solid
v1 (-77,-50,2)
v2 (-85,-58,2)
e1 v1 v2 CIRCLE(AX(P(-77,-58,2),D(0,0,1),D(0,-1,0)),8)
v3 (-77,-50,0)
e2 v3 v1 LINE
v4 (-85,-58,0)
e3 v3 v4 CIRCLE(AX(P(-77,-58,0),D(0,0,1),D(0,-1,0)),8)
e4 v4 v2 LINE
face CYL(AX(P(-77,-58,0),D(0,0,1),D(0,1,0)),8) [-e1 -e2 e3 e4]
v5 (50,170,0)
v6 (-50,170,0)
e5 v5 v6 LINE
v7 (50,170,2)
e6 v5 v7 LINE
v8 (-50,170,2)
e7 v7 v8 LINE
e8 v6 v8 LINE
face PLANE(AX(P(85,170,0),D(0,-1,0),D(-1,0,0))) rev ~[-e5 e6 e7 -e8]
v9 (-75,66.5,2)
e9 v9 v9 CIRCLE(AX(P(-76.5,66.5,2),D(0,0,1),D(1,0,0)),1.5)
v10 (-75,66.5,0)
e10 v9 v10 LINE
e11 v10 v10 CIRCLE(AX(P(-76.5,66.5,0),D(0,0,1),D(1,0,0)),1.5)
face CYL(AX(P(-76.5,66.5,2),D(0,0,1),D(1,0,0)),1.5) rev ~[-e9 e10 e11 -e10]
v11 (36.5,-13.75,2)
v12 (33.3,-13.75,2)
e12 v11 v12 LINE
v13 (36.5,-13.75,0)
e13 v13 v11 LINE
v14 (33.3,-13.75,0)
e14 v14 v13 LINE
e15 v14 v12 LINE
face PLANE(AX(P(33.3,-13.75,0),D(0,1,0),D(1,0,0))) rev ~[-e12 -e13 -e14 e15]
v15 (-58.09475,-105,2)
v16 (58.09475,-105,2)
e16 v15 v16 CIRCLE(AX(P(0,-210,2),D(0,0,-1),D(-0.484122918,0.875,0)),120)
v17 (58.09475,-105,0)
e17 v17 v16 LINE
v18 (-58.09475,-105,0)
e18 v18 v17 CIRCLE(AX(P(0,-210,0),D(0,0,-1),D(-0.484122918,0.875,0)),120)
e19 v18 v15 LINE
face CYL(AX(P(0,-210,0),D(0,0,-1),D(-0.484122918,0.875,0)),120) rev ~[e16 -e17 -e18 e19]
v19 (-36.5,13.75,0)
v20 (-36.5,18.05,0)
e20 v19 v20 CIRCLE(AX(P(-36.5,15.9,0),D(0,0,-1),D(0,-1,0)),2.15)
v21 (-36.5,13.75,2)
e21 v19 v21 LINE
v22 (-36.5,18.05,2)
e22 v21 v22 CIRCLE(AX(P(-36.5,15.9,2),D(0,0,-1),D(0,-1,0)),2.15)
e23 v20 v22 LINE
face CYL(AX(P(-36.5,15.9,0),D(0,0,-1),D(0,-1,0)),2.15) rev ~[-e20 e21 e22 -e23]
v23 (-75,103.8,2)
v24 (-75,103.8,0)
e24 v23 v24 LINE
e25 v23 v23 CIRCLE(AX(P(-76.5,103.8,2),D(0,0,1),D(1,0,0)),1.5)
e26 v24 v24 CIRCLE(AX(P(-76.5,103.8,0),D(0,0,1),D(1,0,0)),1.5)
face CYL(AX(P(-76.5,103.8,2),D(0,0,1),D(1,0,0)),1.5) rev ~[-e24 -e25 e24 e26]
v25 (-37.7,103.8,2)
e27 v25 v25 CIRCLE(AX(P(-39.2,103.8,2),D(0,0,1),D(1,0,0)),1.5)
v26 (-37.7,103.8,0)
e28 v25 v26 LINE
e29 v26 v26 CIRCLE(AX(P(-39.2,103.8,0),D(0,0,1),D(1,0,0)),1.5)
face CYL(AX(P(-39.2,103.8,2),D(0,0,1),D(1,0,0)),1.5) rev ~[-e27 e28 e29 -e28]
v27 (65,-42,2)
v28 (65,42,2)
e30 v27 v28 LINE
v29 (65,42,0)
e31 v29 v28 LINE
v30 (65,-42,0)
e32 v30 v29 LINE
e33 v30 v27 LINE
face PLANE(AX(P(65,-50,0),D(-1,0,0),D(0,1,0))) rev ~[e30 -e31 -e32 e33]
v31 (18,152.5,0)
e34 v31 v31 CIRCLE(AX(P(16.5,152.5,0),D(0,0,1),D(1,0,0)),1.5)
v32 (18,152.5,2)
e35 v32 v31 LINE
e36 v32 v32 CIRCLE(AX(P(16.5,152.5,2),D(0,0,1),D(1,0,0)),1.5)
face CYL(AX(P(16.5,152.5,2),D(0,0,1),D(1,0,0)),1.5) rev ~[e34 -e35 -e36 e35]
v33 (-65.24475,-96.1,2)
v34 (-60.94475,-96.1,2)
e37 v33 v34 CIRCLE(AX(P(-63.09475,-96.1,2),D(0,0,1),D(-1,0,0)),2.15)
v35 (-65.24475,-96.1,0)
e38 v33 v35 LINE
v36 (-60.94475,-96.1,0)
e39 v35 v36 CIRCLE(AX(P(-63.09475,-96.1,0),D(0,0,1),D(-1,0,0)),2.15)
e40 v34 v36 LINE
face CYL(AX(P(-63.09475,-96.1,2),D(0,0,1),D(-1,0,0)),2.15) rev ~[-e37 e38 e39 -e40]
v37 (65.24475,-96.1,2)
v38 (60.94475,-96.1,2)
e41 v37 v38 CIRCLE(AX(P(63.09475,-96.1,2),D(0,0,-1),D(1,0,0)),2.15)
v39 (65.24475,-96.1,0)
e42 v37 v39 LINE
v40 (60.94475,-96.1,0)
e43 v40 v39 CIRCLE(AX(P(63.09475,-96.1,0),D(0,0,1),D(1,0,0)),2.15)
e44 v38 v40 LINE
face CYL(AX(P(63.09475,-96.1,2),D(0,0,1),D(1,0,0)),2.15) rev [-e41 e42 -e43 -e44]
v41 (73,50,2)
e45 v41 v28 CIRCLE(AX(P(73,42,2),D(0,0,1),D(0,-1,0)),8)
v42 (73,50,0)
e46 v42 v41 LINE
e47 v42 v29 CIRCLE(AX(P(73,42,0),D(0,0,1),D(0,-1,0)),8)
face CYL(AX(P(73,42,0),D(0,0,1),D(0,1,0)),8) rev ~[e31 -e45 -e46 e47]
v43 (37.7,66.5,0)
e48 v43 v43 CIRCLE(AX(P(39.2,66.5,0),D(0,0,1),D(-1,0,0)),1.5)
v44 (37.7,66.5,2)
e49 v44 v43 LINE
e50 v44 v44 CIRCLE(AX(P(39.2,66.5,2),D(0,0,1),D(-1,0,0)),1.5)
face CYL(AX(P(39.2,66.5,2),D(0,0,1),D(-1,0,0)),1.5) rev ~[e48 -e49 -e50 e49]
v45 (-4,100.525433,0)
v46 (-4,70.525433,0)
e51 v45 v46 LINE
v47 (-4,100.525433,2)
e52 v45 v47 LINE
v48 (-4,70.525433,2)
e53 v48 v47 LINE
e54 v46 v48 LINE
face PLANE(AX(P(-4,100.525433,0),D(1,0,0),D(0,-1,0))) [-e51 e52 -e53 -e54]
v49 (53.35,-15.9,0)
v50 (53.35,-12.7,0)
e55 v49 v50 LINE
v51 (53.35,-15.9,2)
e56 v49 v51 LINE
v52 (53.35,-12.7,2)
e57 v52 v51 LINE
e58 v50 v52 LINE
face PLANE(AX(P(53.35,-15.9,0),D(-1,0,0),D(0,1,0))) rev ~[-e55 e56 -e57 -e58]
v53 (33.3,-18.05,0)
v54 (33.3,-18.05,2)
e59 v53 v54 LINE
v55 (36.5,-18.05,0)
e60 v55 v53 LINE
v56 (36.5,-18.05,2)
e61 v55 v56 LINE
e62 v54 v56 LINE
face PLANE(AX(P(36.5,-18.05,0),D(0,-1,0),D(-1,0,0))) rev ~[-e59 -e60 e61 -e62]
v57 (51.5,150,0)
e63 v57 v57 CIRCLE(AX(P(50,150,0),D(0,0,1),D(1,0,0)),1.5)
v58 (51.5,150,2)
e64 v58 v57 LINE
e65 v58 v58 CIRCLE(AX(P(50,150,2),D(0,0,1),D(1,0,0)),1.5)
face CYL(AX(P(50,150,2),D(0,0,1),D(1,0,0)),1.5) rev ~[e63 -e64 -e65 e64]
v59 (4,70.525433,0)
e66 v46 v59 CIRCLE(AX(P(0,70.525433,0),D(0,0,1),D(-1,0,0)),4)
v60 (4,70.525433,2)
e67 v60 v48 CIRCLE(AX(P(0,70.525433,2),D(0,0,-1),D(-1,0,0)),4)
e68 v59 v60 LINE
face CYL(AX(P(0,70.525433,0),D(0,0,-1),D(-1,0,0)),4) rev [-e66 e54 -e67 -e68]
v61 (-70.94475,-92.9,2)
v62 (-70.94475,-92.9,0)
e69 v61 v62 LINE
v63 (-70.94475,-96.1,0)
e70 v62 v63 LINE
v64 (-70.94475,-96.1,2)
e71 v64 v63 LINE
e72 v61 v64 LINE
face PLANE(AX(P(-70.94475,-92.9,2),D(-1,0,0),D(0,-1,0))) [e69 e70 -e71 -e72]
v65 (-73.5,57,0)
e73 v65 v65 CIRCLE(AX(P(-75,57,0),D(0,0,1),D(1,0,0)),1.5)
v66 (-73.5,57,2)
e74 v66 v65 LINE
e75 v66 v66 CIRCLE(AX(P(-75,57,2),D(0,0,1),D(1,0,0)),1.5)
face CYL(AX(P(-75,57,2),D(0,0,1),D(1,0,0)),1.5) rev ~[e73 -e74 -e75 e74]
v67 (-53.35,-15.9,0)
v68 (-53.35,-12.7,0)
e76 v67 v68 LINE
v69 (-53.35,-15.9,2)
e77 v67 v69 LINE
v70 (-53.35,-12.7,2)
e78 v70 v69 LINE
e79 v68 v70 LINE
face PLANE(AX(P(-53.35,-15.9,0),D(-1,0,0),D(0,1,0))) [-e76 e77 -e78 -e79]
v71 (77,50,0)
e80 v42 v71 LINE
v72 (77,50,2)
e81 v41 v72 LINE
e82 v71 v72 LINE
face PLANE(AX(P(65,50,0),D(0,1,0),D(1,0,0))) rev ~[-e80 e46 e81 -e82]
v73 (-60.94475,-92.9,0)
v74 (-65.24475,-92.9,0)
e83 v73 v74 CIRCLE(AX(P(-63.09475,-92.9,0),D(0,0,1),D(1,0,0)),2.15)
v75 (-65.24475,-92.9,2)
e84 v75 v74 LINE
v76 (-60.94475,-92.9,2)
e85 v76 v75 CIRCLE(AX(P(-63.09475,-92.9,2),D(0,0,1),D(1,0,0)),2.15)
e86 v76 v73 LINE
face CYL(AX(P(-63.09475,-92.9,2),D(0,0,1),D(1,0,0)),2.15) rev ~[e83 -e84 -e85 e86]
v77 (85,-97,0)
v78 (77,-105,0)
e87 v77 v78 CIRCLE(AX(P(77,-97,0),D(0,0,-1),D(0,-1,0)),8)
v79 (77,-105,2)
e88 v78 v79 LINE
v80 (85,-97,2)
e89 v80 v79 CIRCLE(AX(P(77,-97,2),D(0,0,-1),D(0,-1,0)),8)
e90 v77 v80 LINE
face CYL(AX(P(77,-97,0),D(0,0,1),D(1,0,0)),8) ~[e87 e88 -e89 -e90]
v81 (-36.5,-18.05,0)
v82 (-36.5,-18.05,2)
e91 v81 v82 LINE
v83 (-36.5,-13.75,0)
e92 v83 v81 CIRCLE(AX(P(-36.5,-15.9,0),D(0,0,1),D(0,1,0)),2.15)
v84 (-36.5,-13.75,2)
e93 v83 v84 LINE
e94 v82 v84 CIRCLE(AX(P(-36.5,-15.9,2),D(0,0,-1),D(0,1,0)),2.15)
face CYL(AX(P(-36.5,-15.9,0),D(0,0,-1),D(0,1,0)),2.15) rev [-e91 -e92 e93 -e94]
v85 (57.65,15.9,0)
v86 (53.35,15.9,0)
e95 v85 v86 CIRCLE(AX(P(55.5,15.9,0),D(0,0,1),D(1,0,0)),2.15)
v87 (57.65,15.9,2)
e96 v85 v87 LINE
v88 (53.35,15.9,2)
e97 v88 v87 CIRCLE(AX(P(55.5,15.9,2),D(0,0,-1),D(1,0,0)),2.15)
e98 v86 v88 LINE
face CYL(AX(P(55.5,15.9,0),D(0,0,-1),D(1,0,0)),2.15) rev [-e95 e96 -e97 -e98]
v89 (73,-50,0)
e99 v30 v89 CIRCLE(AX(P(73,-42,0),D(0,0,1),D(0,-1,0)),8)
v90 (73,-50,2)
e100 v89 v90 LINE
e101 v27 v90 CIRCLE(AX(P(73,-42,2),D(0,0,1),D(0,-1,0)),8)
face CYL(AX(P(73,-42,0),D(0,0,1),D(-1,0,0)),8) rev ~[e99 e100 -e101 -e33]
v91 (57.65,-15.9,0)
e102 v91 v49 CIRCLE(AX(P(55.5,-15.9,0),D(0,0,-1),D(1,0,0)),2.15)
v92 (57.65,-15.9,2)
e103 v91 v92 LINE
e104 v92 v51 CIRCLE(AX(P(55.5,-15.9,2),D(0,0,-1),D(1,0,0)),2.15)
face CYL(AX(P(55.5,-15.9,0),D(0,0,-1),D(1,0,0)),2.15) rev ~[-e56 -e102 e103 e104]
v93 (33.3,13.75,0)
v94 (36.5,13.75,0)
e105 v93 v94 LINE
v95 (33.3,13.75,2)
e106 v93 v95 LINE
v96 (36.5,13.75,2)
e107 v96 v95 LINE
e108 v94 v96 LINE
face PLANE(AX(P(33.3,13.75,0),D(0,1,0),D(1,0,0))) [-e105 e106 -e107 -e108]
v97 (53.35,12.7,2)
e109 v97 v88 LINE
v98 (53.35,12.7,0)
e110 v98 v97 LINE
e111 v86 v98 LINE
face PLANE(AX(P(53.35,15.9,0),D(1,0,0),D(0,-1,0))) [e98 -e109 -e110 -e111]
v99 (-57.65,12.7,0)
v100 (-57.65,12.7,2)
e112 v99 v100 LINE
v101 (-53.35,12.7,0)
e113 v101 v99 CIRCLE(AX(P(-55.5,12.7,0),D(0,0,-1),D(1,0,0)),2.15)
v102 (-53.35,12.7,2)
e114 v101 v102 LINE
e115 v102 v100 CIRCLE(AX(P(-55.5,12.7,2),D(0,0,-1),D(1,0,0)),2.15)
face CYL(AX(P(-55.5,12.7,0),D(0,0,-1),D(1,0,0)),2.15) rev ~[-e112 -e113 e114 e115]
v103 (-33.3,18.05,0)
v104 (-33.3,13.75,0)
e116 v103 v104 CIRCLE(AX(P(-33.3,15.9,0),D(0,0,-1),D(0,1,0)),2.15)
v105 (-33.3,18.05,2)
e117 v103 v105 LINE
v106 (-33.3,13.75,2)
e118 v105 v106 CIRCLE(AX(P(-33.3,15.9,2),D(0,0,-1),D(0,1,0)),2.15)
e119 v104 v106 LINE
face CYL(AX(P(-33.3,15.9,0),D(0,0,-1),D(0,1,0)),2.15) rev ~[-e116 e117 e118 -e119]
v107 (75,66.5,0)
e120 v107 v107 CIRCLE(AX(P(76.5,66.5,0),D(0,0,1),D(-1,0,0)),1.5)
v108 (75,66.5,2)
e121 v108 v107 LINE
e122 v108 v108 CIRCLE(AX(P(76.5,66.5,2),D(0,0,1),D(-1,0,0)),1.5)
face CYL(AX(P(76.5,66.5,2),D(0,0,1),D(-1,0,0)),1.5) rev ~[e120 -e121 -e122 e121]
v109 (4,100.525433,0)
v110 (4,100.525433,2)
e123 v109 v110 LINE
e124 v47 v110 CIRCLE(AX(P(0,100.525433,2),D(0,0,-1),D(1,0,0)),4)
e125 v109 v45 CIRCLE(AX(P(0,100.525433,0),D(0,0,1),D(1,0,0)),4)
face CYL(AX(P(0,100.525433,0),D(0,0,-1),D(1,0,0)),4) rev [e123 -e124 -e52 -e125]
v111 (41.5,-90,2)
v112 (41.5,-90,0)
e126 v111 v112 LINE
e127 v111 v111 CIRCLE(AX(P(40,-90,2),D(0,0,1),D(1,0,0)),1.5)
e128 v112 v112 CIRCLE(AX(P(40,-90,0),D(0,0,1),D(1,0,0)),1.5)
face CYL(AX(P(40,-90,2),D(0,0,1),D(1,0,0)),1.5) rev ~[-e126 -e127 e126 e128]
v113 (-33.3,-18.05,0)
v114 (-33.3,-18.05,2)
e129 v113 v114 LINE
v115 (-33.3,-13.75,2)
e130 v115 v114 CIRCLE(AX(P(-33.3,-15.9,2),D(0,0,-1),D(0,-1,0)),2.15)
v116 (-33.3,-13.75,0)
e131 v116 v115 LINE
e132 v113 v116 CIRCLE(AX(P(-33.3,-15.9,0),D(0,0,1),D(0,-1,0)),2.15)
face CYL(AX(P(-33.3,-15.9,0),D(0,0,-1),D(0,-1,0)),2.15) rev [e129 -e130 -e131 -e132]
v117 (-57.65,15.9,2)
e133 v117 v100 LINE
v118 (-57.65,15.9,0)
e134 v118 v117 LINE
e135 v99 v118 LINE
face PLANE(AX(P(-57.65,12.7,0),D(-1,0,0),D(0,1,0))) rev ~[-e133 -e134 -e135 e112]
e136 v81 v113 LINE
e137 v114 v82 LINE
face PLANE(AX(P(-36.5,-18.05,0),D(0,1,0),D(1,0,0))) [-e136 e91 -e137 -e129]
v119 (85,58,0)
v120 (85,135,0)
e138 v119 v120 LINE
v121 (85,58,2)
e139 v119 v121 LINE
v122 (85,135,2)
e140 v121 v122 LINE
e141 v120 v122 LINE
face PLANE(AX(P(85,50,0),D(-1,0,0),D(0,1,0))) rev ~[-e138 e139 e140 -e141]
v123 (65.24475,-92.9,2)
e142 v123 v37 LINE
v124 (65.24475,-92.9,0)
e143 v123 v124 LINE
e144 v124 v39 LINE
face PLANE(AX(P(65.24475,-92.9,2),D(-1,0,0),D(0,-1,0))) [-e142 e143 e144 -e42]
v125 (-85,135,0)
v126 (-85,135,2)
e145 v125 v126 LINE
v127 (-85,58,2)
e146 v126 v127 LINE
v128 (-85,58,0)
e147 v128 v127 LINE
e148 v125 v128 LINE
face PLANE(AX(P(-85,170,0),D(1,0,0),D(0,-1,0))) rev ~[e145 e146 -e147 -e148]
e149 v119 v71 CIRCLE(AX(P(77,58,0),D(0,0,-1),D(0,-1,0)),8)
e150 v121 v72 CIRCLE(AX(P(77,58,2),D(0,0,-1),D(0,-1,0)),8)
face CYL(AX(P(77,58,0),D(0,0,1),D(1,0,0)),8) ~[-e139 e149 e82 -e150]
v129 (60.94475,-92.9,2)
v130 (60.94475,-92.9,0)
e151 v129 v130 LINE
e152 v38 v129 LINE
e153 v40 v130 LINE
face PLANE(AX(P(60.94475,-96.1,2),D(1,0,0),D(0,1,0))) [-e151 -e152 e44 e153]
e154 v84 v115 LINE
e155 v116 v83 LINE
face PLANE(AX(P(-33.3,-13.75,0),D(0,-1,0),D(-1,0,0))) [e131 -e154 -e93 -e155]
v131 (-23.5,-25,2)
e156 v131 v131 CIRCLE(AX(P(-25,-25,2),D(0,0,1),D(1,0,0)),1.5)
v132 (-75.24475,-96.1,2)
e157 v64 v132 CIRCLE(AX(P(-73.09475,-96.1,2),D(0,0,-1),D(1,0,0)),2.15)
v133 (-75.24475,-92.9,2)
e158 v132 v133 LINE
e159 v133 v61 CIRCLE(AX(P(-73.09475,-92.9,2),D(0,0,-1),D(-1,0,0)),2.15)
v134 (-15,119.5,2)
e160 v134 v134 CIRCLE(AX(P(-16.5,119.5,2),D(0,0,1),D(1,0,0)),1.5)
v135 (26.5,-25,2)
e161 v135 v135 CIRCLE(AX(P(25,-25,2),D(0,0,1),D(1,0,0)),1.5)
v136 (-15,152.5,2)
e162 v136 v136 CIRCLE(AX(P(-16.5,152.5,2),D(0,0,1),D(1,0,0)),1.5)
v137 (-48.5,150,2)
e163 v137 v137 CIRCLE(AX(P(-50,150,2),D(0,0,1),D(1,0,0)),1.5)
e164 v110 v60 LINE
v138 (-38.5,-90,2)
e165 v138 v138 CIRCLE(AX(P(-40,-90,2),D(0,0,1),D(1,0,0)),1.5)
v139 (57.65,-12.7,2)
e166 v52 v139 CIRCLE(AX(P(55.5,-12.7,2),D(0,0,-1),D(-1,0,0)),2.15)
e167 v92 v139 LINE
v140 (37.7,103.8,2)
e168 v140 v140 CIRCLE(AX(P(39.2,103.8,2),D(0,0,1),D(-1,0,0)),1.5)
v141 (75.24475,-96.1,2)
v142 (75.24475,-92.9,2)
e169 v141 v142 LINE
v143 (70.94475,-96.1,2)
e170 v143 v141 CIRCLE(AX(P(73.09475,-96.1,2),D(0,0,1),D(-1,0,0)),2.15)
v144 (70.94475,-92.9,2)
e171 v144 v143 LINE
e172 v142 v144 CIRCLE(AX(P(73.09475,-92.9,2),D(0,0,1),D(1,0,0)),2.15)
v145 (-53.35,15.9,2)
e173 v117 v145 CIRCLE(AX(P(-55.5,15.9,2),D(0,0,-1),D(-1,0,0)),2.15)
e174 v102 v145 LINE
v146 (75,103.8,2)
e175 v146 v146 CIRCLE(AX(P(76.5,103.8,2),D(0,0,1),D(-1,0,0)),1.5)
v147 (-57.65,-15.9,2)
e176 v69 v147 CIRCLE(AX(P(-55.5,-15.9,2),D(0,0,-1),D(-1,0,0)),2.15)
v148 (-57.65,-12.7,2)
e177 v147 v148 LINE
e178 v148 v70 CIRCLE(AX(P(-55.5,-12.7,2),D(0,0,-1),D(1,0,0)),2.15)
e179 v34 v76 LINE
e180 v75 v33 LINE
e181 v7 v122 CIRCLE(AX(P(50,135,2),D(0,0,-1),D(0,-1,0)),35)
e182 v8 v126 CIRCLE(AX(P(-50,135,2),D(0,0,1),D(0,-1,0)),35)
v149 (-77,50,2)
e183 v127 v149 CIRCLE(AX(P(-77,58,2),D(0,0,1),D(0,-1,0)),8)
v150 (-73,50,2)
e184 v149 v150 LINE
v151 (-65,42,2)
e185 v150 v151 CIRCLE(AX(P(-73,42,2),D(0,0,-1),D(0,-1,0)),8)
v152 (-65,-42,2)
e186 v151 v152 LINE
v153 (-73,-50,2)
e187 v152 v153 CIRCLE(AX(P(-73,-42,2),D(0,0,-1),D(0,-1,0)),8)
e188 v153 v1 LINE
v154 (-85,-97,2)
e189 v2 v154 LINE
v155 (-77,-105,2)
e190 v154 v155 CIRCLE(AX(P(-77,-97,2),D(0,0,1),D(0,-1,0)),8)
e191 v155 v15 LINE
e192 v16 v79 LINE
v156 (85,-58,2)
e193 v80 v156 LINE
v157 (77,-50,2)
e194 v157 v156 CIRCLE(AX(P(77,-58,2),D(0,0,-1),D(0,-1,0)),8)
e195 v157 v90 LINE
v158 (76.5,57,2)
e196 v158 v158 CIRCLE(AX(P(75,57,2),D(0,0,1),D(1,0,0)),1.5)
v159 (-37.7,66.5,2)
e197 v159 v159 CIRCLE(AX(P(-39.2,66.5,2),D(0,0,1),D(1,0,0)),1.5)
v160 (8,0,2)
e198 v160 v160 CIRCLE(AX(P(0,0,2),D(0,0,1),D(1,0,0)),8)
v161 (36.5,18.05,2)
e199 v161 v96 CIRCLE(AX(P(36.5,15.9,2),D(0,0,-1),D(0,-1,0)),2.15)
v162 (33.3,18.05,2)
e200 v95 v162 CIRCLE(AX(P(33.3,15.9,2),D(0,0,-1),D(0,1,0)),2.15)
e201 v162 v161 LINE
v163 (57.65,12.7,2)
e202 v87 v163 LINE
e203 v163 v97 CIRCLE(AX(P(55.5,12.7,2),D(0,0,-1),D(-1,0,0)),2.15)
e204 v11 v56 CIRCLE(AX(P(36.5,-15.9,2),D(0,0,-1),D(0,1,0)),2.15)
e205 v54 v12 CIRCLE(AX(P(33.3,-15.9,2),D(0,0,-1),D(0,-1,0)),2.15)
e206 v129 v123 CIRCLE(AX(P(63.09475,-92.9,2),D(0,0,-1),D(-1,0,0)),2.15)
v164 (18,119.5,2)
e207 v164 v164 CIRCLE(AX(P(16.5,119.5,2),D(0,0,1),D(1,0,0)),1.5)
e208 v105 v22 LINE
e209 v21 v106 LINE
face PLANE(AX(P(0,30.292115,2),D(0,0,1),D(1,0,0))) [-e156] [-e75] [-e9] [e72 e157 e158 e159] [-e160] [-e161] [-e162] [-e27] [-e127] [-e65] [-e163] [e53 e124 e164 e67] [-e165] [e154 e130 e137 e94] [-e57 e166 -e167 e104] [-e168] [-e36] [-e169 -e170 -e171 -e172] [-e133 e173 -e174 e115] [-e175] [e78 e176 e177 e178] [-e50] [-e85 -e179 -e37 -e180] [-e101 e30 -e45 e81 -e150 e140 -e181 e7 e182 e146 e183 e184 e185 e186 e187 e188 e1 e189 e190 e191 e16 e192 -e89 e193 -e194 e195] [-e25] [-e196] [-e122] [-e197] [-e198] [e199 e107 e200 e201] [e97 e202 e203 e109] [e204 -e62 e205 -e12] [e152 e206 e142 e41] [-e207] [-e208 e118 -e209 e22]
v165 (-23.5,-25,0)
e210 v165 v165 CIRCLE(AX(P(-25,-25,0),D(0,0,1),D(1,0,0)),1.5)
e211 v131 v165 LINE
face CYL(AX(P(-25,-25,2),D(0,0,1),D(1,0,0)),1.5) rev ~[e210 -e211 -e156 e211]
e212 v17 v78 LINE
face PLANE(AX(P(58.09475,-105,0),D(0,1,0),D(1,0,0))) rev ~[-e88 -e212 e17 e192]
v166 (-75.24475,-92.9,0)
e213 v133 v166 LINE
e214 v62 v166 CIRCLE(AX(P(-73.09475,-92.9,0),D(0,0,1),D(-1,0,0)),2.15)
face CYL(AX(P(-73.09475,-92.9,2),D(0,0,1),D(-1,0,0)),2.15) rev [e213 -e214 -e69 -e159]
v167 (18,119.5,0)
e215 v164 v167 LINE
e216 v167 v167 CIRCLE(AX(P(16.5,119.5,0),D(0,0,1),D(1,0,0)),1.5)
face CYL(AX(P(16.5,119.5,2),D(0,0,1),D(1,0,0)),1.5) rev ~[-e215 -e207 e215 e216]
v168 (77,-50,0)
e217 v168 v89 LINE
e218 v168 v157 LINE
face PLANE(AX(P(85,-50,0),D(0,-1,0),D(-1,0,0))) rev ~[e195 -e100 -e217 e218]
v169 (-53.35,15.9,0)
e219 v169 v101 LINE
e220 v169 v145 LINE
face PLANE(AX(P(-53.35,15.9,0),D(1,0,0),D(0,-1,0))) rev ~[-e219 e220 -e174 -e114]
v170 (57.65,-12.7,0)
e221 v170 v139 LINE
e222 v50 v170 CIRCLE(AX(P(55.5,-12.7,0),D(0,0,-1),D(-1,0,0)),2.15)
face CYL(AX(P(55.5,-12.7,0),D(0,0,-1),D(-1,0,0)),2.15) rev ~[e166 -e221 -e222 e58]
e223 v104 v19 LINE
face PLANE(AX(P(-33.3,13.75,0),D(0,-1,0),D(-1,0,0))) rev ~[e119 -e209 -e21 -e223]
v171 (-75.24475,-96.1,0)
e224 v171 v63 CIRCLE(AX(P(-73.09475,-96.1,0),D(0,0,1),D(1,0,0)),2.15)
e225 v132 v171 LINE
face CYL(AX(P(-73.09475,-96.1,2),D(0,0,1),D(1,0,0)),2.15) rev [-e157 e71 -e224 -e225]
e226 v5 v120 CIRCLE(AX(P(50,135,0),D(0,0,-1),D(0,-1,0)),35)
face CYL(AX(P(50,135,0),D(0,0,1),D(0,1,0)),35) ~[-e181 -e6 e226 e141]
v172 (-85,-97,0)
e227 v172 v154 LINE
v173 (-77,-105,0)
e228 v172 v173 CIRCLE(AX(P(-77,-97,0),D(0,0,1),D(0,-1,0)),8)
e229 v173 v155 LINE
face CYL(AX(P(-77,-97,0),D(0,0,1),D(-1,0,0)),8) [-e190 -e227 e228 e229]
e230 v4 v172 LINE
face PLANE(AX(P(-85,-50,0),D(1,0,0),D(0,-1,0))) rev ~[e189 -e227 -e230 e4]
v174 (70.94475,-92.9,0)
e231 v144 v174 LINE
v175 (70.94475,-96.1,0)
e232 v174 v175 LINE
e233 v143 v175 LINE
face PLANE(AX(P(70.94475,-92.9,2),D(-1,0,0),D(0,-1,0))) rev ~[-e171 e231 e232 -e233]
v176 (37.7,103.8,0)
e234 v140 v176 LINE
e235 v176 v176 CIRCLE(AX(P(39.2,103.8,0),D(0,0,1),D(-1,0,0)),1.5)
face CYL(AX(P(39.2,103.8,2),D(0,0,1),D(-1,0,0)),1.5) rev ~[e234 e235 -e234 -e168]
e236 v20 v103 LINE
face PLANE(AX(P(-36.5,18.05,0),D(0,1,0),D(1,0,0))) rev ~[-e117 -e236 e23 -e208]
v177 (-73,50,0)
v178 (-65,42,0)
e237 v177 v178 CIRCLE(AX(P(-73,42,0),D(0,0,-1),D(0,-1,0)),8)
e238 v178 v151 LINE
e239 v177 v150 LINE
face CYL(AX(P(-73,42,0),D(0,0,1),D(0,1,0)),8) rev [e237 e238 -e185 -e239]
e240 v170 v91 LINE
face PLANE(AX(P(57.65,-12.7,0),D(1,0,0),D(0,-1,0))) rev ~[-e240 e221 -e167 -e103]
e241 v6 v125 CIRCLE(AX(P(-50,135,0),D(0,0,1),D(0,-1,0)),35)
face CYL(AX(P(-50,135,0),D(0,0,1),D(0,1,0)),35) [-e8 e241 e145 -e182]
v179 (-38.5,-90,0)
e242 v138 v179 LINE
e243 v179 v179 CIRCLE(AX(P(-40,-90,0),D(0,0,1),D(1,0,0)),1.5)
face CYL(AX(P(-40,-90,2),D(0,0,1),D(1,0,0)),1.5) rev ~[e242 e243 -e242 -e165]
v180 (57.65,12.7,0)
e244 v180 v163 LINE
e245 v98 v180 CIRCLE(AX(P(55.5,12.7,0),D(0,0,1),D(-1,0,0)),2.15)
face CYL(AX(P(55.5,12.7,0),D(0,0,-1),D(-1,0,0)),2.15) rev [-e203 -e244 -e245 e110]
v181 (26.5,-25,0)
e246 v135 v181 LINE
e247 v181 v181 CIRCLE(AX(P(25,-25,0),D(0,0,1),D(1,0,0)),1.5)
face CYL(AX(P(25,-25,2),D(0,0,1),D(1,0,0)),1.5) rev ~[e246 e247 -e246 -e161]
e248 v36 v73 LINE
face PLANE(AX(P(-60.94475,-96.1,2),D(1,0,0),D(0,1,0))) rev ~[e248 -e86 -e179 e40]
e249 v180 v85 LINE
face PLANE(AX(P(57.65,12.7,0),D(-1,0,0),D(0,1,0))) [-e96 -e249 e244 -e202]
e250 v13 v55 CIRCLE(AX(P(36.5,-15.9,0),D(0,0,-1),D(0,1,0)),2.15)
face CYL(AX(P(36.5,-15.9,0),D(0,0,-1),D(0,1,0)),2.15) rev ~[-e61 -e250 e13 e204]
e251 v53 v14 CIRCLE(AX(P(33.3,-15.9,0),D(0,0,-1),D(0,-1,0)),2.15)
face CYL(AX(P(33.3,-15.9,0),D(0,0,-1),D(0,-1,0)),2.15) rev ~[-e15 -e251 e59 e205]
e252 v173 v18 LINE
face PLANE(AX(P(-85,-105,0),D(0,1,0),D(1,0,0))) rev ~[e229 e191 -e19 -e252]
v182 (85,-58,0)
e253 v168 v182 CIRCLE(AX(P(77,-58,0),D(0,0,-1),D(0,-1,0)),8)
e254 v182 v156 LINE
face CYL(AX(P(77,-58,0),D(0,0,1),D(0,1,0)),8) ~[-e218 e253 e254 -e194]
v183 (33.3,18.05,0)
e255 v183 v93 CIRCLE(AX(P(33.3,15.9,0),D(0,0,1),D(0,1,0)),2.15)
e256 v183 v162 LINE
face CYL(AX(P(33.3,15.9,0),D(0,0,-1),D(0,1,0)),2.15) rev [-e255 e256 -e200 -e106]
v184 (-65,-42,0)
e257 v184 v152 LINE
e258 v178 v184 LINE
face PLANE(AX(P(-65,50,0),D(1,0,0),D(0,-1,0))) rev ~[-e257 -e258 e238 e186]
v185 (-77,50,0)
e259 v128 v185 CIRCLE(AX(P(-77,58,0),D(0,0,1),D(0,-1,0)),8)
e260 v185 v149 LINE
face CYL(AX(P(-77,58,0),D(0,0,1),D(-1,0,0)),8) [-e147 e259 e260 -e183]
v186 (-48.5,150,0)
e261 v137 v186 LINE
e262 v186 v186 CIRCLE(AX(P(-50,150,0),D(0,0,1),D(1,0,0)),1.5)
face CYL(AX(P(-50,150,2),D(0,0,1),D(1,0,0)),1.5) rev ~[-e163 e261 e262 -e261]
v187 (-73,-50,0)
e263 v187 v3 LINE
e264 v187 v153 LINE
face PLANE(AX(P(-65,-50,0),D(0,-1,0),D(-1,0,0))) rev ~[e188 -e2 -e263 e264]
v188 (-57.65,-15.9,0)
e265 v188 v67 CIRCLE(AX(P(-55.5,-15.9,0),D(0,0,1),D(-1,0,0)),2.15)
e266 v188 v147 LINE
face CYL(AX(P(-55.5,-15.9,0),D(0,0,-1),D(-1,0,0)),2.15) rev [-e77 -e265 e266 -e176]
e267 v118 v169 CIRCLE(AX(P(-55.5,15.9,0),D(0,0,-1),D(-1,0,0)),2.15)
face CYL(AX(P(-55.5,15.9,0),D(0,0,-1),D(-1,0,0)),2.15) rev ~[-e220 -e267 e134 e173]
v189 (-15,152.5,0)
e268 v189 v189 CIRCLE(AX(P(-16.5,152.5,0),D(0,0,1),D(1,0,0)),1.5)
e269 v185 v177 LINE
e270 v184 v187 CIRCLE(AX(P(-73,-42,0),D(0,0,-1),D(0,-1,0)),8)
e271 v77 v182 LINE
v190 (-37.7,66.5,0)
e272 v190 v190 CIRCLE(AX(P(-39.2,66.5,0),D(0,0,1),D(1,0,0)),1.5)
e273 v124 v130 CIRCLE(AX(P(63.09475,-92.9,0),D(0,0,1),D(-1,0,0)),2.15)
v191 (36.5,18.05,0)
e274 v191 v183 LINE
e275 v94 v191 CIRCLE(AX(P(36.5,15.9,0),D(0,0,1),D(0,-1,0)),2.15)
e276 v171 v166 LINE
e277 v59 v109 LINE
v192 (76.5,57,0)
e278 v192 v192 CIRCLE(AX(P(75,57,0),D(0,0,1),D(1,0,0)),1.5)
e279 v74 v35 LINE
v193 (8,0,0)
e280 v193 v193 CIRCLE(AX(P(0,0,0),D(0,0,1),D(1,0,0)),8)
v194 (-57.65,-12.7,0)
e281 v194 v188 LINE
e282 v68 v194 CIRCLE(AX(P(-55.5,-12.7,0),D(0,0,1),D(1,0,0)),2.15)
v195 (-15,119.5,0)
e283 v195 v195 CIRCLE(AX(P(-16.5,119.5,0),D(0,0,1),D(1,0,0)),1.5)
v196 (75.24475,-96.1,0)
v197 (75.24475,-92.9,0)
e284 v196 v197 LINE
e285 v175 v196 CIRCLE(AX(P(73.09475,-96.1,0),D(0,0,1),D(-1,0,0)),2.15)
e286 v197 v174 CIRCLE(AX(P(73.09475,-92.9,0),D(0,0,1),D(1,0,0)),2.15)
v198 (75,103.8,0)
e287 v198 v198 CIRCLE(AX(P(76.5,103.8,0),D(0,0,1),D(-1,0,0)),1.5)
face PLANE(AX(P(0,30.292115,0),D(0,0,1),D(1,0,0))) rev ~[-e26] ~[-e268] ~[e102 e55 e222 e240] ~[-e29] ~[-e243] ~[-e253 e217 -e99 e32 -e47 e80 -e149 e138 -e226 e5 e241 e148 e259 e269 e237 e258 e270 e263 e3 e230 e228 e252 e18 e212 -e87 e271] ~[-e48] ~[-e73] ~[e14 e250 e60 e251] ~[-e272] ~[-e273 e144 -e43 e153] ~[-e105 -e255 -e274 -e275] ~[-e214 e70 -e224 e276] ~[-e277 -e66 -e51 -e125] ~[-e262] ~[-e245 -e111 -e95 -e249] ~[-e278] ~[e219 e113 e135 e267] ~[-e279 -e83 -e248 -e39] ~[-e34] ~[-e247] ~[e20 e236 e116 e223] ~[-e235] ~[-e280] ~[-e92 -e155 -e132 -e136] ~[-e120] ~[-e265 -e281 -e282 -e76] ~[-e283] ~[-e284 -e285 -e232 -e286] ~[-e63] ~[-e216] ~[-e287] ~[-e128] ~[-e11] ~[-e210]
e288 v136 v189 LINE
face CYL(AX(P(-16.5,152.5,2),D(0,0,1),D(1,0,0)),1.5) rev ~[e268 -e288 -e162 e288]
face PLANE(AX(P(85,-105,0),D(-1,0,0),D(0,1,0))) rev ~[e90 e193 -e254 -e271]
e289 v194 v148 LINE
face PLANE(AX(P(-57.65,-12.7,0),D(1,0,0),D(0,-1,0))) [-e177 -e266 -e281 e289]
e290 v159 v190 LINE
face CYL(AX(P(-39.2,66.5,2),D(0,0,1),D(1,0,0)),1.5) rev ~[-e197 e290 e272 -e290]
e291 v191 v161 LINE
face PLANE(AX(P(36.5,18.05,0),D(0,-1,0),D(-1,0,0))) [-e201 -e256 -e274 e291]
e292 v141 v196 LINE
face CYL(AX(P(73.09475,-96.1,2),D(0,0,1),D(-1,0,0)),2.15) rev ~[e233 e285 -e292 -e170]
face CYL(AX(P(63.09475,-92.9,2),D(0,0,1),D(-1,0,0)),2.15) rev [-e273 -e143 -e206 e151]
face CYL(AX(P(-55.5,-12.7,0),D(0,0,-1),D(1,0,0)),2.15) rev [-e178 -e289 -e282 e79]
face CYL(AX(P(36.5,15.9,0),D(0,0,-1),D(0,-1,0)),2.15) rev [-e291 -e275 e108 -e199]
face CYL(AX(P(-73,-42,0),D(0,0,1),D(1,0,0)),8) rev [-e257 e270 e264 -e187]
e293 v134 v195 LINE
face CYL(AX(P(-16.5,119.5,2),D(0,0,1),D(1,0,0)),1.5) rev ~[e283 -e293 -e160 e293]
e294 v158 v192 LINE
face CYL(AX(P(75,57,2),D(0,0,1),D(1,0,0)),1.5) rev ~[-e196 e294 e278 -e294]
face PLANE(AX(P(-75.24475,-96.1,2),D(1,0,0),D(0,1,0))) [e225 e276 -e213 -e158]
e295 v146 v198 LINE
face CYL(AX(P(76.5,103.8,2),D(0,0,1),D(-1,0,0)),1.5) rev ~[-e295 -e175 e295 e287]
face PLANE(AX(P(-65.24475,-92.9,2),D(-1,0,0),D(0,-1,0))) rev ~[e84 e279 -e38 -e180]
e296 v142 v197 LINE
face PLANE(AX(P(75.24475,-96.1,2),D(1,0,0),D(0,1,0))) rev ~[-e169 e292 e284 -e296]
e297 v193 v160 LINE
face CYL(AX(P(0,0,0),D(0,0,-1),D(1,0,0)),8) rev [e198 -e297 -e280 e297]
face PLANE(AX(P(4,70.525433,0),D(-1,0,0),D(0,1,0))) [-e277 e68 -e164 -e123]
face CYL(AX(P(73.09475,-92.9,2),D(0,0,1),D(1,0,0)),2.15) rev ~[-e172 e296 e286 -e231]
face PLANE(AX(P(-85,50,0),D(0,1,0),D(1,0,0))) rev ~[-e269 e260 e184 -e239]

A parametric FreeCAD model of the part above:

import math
import FreeCAD as App
import Part
import Sketcher

V = App.Vector
Q = App.Units.Quantity


def edges_at(feature, points):
    """Names of the edges that pass closest to the given points."""
    edges = feature.Shape.Edges
    near = lambda p: min(range(len(edges)), key=lambda i: edges[i].distToShape(Part.Vertex(*p))[0])
    return sorted({f"Edge{near(p) + 1}" for p in points})

doc = App.newDocument("Part")
body = doc.addObject("PartDesign::Body", "Body")

# Sketch on XY plane
sketch1 = body.newObject("Sketcher::SketchObject", "Sketch")
sketch1.AttachmentSupport = (doc.getObject("XY_Plane"), [""])
sketch1.MapMode = "FlatFace"
sketch1.addGeometry([
    Part.LineSegment(V(85, 170, 0), V(-85, 170, 0)),  # 0
    Part.LineSegment(V(-85, 170, 0), V(-85, 50, 0)),  # 1
    Part.LineSegment(V(-85, 50, 0), V(-65, 50, 0)),  # 2
    Part.LineSegment(V(-65, 50, 0), V(-65, -50, 0)),  # 3
    Part.LineSegment(V(-65, -50, 0), V(-85, -50, 0)),  # 4
    Part.LineSegment(V(-85, -50, 0), V(-85, -105, 0)),  # 5
    Part.LineSegment(V(-85, -105, 0), V(-58, -105, 0)),  # 6
    Part.ArcOfCircle(Part.Circle(V(0, -210, 0), V(0, 0, 1), 120), math.radians(61), math.radians(119)),  # 7
    Part.LineSegment(V(58, -105, 0), V(85, -105, 0)),  # 8
    Part.LineSegment(V(85, -105, 0), V(85, -50, 0)),  # 9
    Part.LineSegment(V(85, -50, 0), V(65, -50, 0)),  # 10
    Part.LineSegment(V(65, -50, 0), V(65, 50, 0)),  # 11
    Part.LineSegment(V(65, 50, 0), V(85, 50, 0)),  # 12
    Part.LineSegment(V(85, 50, 0), V(85, 170, 0)),  # 13
    Part.Circle(V(0, 0, 0), V(0, 0, 1), 8),  # 14
], False)
sketch1.addConstraint([
    Sketcher.Constraint("Coincident", 0, 2, 1, 1),
    Sketcher.Constraint("Coincident", 1, 2, 2, 1),
    Sketcher.Constraint("Coincident", 2, 2, 3, 1),
    Sketcher.Constraint("Coincident", 3, 2, 4, 1),
    Sketcher.Constraint("Coincident", 4, 2, 5, 1),
    Sketcher.Constraint("Coincident", 5, 2, 6, 1),
    Sketcher.Constraint("Coincident", 6, 2, 7, 2),
    Sketcher.Constraint("Coincident", 7, 1, 8, 1),
    Sketcher.Constraint("Coincident", 8, 2, 9, 1),
    Sketcher.Constraint("Coincident", 9, 2, 10, 1),
    Sketcher.Constraint("Coincident", 10, 2, 11, 1),
    Sketcher.Constraint("Coincident", 11, 2, 12, 1),
    Sketcher.Constraint("Coincident", 12, 2, 13, 1),
    Sketcher.Constraint("Coincident", 13, 2, 0, 1),
    Sketcher.Constraint("Horizontal", 0),
    Sketcher.Constraint("Vertical", 1),
    Sketcher.Constraint("Horizontal", 2),
    Sketcher.Constraint("Vertical", 3),
    Sketcher.Constraint("Horizontal", 4),
    Sketcher.Constraint("Vertical", 5),
    Sketcher.Constraint("Horizontal", 6),
    Sketcher.Constraint("Horizontal", 8),
    Sketcher.Constraint("Vertical", 9),
    Sketcher.Constraint("Horizontal", 10),
    Sketcher.Constraint("Vertical", 11),
    Sketcher.Constraint("Horizontal", 12),
    Sketcher.Constraint("Vertical", 13),
    Sketcher.Constraint("Coincident", 14, 3, -1, 1),
    Sketcher.Constraint("Symmetric", 1, 2, 9, 2, -1, 1),
    Sketcher.Constraint("Symmetric", 3, 2, 11, 2, -1, 1),
    Sketcher.Constraint("Symmetric", 6, 2, 7, 1, -2),
    Sketcher.Constraint("Symmetric", 4, 2, 9, 2, -2),
    Sketcher.Constraint("Vertical", 9, 2, 12, 2),
    Sketcher.Constraint("Diameter", 14, Q("16 mm")),
    Sketcher.Constraint("Radius", 7, Q("120 mm")),
    Sketcher.Constraint("DistanceX", 0, 2, 0, 1, Q("170 mm")),
    Sketcher.Constraint("DistanceX", 2, 1, 2, 2, Q("20 mm")),
    Sketcher.Constraint("DistanceY", 1, 2, 1, 1, Q("120 mm")),
    Sketcher.Constraint("DistanceY", 3, 2, 3, 1, Q("100 mm")),
    Sketcher.Constraint("DistanceY", 5, 2, 5, 1, Q("55 mm")),
    Sketcher.Constraint("DistanceY", 7, 3, -1, 1, Q("210 mm")),
])
pad1 = body.newObject("PartDesign::Pad", "Pad")
pad1.Profile = sketch1
pad1.Length = 2
doc.recompute()

fillet = body.newObject("PartDesign::Fillet", "Fillet")
fillet.Base = (pad1, edges_at(pad1, [(-85, 170, 1), (85, 170, 1)]))
fillet.Radius = 35
doc.recompute()

fillet2 = body.newObject("PartDesign::Fillet", "Fillet001")
fillet2.Base = (fillet, edges_at(fillet, [
    (-85, -105, 1),
    (-85, -50, 1),
    (-65, -50, 1),
    (-65, 50, 1),
    (-85, 50, 1),
]))
fillet2.Radius = 8
doc.recompute()

fillet3 = body.newObject("PartDesign::Fillet", "Fillet002")
fillet3.Base = (fillet2, edges_at(fillet2, [
    (85, 50, 1),
    (65, 50, 1),
    (65, -50, 1),
    (85, -50, 1),
    (85, -105, 1),
]))
fillet3.Radius = 8

# Sketch on XY plane
sketch2 = body.newObject("Sketcher::SketchObject", "Sketch001")
sketch2.AttachmentSupport = (doc.getObject("XY_Plane"), [""])
sketch2.MapMode = "FlatFace"
sketch2.AttachmentOffset = App.Placement(V(0, 0, 2), App.Rotation())
sketch2.addGeometry([
    Part.Circle(V(-76.5, 66.5, 0), V(0, 0, 1), 1.5),  # 0
    Part.Circle(V(-76.5, 103.8, 0), V(0, 0, 1), 1.5),  # 1
    Part.Circle(V(-39.2, 103.8, 0), V(0, 0, 1), 1.5),  # 2
    Part.Circle(V(-39.2, 66.5, 0), V(0, 0, 1), 1.5),  # 3
    Part.Circle(V(76.5, 66.5, 0), V(0, 0, 1), 1.5),  # 4
    Part.Circle(V(76.5, 103.8, 0), V(0, 0, 1), 1.5),  # 5
    Part.Circle(V(39.2, 103.8, 0), V(0, 0, 1), 1.5),  # 6
    Part.Circle(V(39.2, 66.5, 0), V(0, 0, 1), 1.5),  # 7
], False)
sketch2.addConstraint([
    Sketcher.Constraint("Equal", 0, 1),
    Sketcher.Constraint("Equal", 1, 2),
    Sketcher.Constraint("Equal", 2, 3),
    Sketcher.Constraint("Equal", 3, 4),
    Sketcher.Constraint("Equal", 4, 5),
    Sketcher.Constraint("Equal", 5, 6),
    Sketcher.Constraint("Equal", 6, 7),
    Sketcher.Constraint("Symmetric", 0, 3, 4, 3, -2),
    Sketcher.Constraint("Symmetric", 1, 3, 5, 3, -2),
    Sketcher.Constraint("Symmetric", 2, 3, 6, 3, -2),
    Sketcher.Constraint("Symmetric", 3, 3, 7, 3, -2),
    Sketcher.Constraint("Horizontal", 1, 3, 2, 3),
    Sketcher.Constraint("Horizontal", 0, 3, 3, 3),
    Sketcher.Constraint("Vertical", 0, 3, 1, 3),
    Sketcher.Constraint("Vertical", 2, 3, 3, 3),
    Sketcher.Constraint("Diameter", 0, Q("3 mm")),
    Sketcher.Constraint("DistanceX", 0, 3, 4, 3, Q("153 mm")),
    Sketcher.Constraint("DistanceY", -1, 1, 0, 3, Q("66.5 mm")),
    Sketcher.Constraint("DistanceY", -1, 1, 1, 3, Q("103.8 mm")),
    Sketcher.Constraint("DistanceX", 2, 3, -1, 1, Q("39.2 mm")),
])
pocket1 = body.newObject("PartDesign::Pocket", "Pocket")
pocket1.Profile = sketch2
pocket1.Length = 2

# Sketch on XY plane
sketch3 = body.newObject("Sketcher::SketchObject", "Sketch002")
sketch3.AttachmentSupport = (doc.getObject("XY_Plane"), [""])
sketch3.MapMode = "FlatFace"
sketch3.addGeometry([
    Part.LineSegment(V(4, 100.5, 0), V(4, 70.5, 0)),  # 0
    Part.ArcOfCircle(Part.Circle(V(0, 70.5, 0), V(0, 0, 1), 4), math.radians(180), math.radians(360)),  # 1
    Part.LineSegment(V(-4, 70.5, 0), V(-4, 100.5, 0)),  # 2
    Part.ArcOfCircle(Part.Circle(V(0, 100.5, 0), V(0, 0, 1), 4), math.radians(0), math.radians(180)),  # 3
    Part.LineSegment(V(53.4, 12.7, 0), V(53.4, 15.9, 0)),  # 4
    Part.ArcOfCircle(Part.Circle(V(55.5, 15.9, 0), V(0, 0, 1), 2.1), math.radians(0), math.radians(180)),  # 5
    Part.LineSegment(V(57.6, 15.9, 0), V(57.6, 12.7, 0)),  # 6
    Part.ArcOfCircle(Part.Circle(V(55.5, 12.7, 0), V(0, 0, 1), 2.1), math.radians(180), math.radians(360)),  # 7
    Part.LineSegment(V(53.4, -15.9, 0), V(53.4, -12.7, 0)),  # 8
    Part.ArcOfCircle(Part.Circle(V(55.5, -12.7, 0), V(0, 0, 1), 2.1), math.radians(0), math.radians(180)),  # 9
    Part.LineSegment(V(57.6, -12.7, 0), V(57.6, -15.9, 0)),  # 10
    Part.ArcOfCircle(Part.Circle(V(55.5, -15.9, 0), V(0, 0, 1), 2.1), math.radians(180), math.radians(360)),  # 11
    Part.LineSegment(V(36.5, 13.8, 0), V(33.3, 13.8, 0)),  # 12
    Part.ArcOfCircle(Part.Circle(V(33.3, 15.9, 0), V(0, 0, 1), 2.1), math.radians(90), math.radians(270)),  # 13
    Part.LineSegment(V(33.3, 18.1, 0), V(36.5, 18.1, 0)),  # 14
    Part.ArcOfCircle(Part.Circle(V(36.5, 15.9, 0), V(0, 0, 1), 2.1), math.radians(-90), math.radians(90)),  # 15
    Part.LineSegment(V(33.3, -13.8, 0), V(36.5, -13.8, 0)),  # 16
    Part.ArcOfCircle(Part.Circle(V(36.5, -15.9, 0), V(0, 0, 1), 2.1), math.radians(-90), math.radians(90)),  # 17
    Part.LineSegment(V(36.5, -18.1, 0), V(33.3, -18.1, 0)),  # 18
    Part.ArcOfCircle(Part.Circle(V(33.3, -15.9, 0), V(0, 0, 1), 2.1), math.radians(90), math.radians(270)),  # 19
    Part.LineSegment(V(-36.5, -13.8, 0), V(-33.3, -13.8, 0)),  # 20
    Part.ArcOfCircle(Part.Circle(V(-33.3, -15.9, 0), V(0, 0, 1), 2.1), math.radians(-90), math.radians(90)),  # 21
    Part.LineSegment(V(-33.3, -18.1, 0), V(-36.5, -18.1, 0)),  # 22
    Part.ArcOfCircle(Part.Circle(V(-36.5, -15.9, 0), V(0, 0, 1), 2.1), math.radians(90), math.radians(270)),  # 23
    Part.LineSegment(V(-33.3, 13.8, 0), V(-36.5, 13.8, 0)),  # 24
    Part.ArcOfCircle(Part.Circle(V(-36.5, 15.9, 0), V(0, 0, 1), 2.1), math.radians(90), math.radians(270)),  # 25
    Part.LineSegment(V(-36.5, 18.1, 0), V(-33.3, 18.1, 0)),  # 26
    Part.ArcOfCircle(Part.Circle(V(-33.3, 15.9, 0), V(0, 0, 1), 2.1), math.radians(-90), math.radians(90)),  # 27
    Part.LineSegment(V(-53.4, 15.9, 0), V(-53.4, 12.7, 0)),  # 28
    Part.ArcOfCircle(Part.Circle(V(-55.5, 12.7, 0), V(0, 0, 1), 2.1), math.radians(180), math.radians(360)),  # 29
    Part.LineSegment(V(-57.6, 12.7, 0), V(-57.6, 15.9, 0)),  # 30
    Part.ArcOfCircle(Part.Circle(V(-55.5, 15.9, 0), V(0, 0, 1), 2.1), math.radians(0), math.radians(180)),  # 31
    Part.LineSegment(V(-53.4, -12.7, 0), V(-53.4, -15.9, 0)),  # 32
    Part.ArcOfCircle(Part.Circle(V(-55.5, -15.9, 0), V(0, 0, 1), 2.1), math.radians(180), math.radians(360)),  # 33
    Part.LineSegment(V(-57.6, -15.9, 0), V(-57.6, -12.7, 0)),  # 34
    Part.ArcOfCircle(Part.Circle(V(-55.5, -12.7, 0), V(0, 0, 1), 2.1), math.radians(0), math.radians(180)),  # 35
], False)
sketch3.addConstraint([
    Sketcher.Constraint("Tangent", 0, 2, 1, 2),
    Sketcher.Constraint("Tangent", 1, 1, 2, 1),
    Sketcher.Constraint("Tangent", 2, 2, 3, 2),
    Sketcher.Constraint("Tangent", 3, 1, 0, 1),
    Sketcher.Constraint("Tangent", 4, 2, 5, 2),
    Sketcher.Constraint("Tangent", 5, 1, 6, 1),
    Sketcher.Constraint("Tangent", 6, 2, 7, 2),
    Sketcher.Constraint("Tangent", 7, 1, 4, 1),
    Sketcher.Constraint("Tangent", 8, 2, 9, 2),
    Sketcher.Constraint("Tangent", 9, 1, 10, 1),
    Sketcher.Constraint("Tangent", 10, 2, 11, 2),
    Sketcher.Constraint("Tangent", 11, 1, 8, 1),
    Sketcher.Constraint("Tangent", 12, 2, 13, 2),
    Sketcher.Constraint("Tangent", 13, 1, 14, 1),
    Sketcher.Constraint("Tangent", 14, 2, 15, 2),
    Sketcher.Constraint("Tangent", 15, 1, 12, 1),
    Sketcher.Constraint("Tangent", 16, 2, 17, 2),
    Sketcher.Constraint("Tangent", 17, 1, 18, 1),
    Sketcher.Constraint("Tangent", 18, 2, 19, 2),
    Sketcher.Constraint("Tangent", 19, 1, 16, 1),
    Sketcher.Constraint("Tangent", 20, 2, 21, 2),
    Sketcher.Constraint("Tangent", 21, 1, 22, 1),
    Sketcher.Constraint("Tangent", 22, 2, 23, 2),
    Sketcher.Constraint("Tangent", 23, 1, 20, 1),
    Sketcher.Constraint("Tangent", 24, 2, 25, 2),
    Sketcher.Constraint("Tangent", 25, 1, 26, 1),
    Sketcher.Constraint("Tangent", 26, 2, 27, 2),
    Sketcher.Constraint("Tangent", 27, 1, 24, 1),
    Sketcher.Constraint("Tangent", 28, 2, 29, 2),
    Sketcher.Constraint("Tangent", 29, 1, 30, 1),
    Sketcher.Constraint("Tangent", 30, 2, 31, 2),
    Sketcher.Constraint("Tangent", 31, 1, 28, 1),
    Sketcher.Constraint("Tangent", 32, 2, 33, 2),
    Sketcher.Constraint("Tangent", 33, 1, 34, 1),
    Sketcher.Constraint("Tangent", 34, 2, 35, 2),
    Sketcher.Constraint("Tangent", 35, 1, 32, 1),
    Sketcher.Constraint("Vertical", 0),
    Sketcher.Constraint("Vertical", 2),
    Sketcher.Constraint("Vertical", 4),
    Sketcher.Constraint("Vertical", 6),
    Sketcher.Constraint("Vertical", 8),
    Sketcher.Constraint("Vertical", 10),
    Sketcher.Constraint("Horizontal", 12),
    Sketcher.Constraint("Horizontal", 14),
    Sketcher.Constraint("Horizontal", 16),
    Sketcher.Constraint("Horizontal", 18),
    Sketcher.Constraint("Horizontal", 20),
    Sketcher.Constraint("Horizontal", 22),
    Sketcher.Constraint("Horizontal", 24),
    Sketcher.Constraint("Horizontal", 26),
    Sketcher.Constraint("Vertical", 28),
    Sketcher.Constraint("Vertical", 30),
    Sketcher.Constraint("Vertical", 32),
    Sketcher.Constraint("Vertical", 34),
    Sketcher.Constraint("Equal", 7, 9),
    Sketcher.Constraint("Equal", 11, 13),
    Sketcher.Constraint("Equal", 15, 17),
    Sketcher.Constraint("Equal", 19, 21),
    Sketcher.Constraint("Equal", 23, 25),
    Sketcher.Constraint("Equal", 27, 29),
    Sketcher.Constraint("Equal", 31, 33),
    Sketcher.Constraint("Symmetric", 13, 3, 21, 3, -1, 1),
    Sketcher.Constraint("Symmetric", 17, 3, 25, 3, -1, 1),
    Sketcher.Constraint("Symmetric", 9, 3, 29, 3, -1, 1),
    Sketcher.Constraint("Symmetric", 5, 3, 33, 3, -1, 1),
    Sketcher.Constraint("Symmetric", 19, 3, 21, 3, -2),
    Sketcher.Constraint("Symmetric", 7, 3, 29, 3, -2),
    Sketcher.Constraint("PointOnObject", 1, 3, -2),
    Sketcher.Constraint("Horizontal", 5, 3, 13, 3),
    Sketcher.Constraint("Horizontal", 11, 3, 17, 3),
    Sketcher.Constraint("Horizontal", 27, 3, 31, 3),
    Sketcher.Constraint("Horizontal", 9, 3, 35, 3),
    Sketcher.Constraint("Vertical", 15, 3, 17, 3),
    Sketcher.Constraint("Vertical", 23, 3, 25, 3),
    Sketcher.Constraint("Vertical", 21, 3, 27, 3),
    Sketcher.Constraint("Equal", 26, 4),
    Sketcher.Constraint("Radius", 1, Q("4 mm")),
    Sketcher.Constraint("DistanceY", 0, 2, 0, 1, Q("30 mm")),
    Sketcher.Constraint("Radius", 5, Q("2.15 mm")),
    Sketcher.Constraint("DistanceX", 12, 2, 12, 1, Q("3.2 mm")),
    Sketcher.Constraint("DistanceX", 15, 3, 5, 3, Q("19 mm")),
    Sketcher.Constraint("DistanceX", 23, 3, 17, 3, Q("73 mm")),
    Sketcher.Constraint("DistanceY", -1, 1, 5, 3, Q("15.9 mm")),
    Sketcher.Constraint("DistanceY", -1, 1, 1, 3, Q("70.525433 mm")),
])
pocket2 = body.newObject("PartDesign::Pocket", "Pocket001")
pocket2.Profile = sketch3
pocket2.Length = 10
pocket2.Reversed = True

# Sketch on XY plane
sketch4 = body.newObject("Sketcher::SketchObject", "Sketch003")
sketch4.AttachmentSupport = (doc.getObject("XY_Plane"), [""])
sketch4.MapMode = "FlatFace"
sketch4.AttachmentOffset = App.Placement(V(0, 0, 2), App.Rotation())
sketch4.addGeometry([
    Part.LineSegment(V(-70.9, -96.1, 0), V(-70.9, -92.9, 0)),  # 0
    Part.ArcOfCircle(Part.Circle(V(-73.1, -92.9, 0), V(0, 0, 1), 2.1), math.radians(0), math.radians(180)),  # 1
    Part.LineSegment(V(-75.2, -92.9, 0), V(-75.2, -96.1, 0)),  # 2
    Part.ArcOfCircle(Part.Circle(V(-73.1, -96.1, 0), V(0, 0, 1), 2.1), math.radians(180), math.radians(360)),  # 3
    Part.LineSegment(V(-65.2, -92.9, 0), V(-65.2, -96.1, 0)),  # 4
    Part.ArcOfCircle(Part.Circle(V(-63.1, -96.1, 0), V(0, 0, 1), 2.1), math.radians(180), math.radians(360)),  # 5
    Part.LineSegment(V(-60.9, -96.1, 0), V(-60.9, -92.9, 0)),  # 6
    Part.ArcOfCircle(Part.Circle(V(-63.1, -92.9, 0), V(0, 0, 1), 2.1), math.radians(0), math.radians(180)),  # 7
    Part.LineSegment(V(65.2, -96.1, 0), V(65.2, -92.9, 0)),  # 8
    Part.ArcOfCircle(Part.Circle(V(63.1, -92.9, 0), V(0, 0, 1), 2.1), math.radians(0), math.radians(180)),  # 9
    Part.LineSegment(V(60.9, -92.9, 0), V(60.9, -96.1, 0)),  # 10
    Part.ArcOfCircle(Part.Circle(V(63.1, -96.1, 0), V(0, 0, 1), 2.1), math.radians(180), math.radians(360)),  # 11
    Part.LineSegment(V(70.9, -92.9, 0), V(70.9, -96.1, 0)),  # 12
    Part.ArcOfCircle(Part.Circle(V(73.1, -96.1, 0), V(0, 0, 1), 2.1), math.radians(180), math.radians(360)),  # 13
    Part.LineSegment(V(75.2, -96.1, 0), V(75.2, -92.9, 0)),  # 14
    Part.ArcOfCircle(Part.Circle(V(73.1, -92.9, 0), V(0, 0, 1), 2.1), math.radians(0), math.radians(180)),  # 15
], False)
sketch4.addConstraint([
    Sketcher.Constraint("Tangent", 0, 2, 1, 1),
    Sketcher.Constraint("Tangent", 1, 2, 2, 1),
    Sketcher.Constraint("Tangent", 2, 2, 3, 1),
    Sketcher.Constraint("Tangent", 3, 2, 0, 1),
    Sketcher.Constraint("Tangent", 4, 2, 5, 1),
    Sketcher.Constraint("Tangent", 5, 2, 6, 1),
    Sketcher.Constraint("Tangent", 6, 2, 7, 1),
    Sketcher.Constraint("Tangent", 7, 2, 4, 1),
    Sketcher.Constraint("Tangent", 8, 2, 9, 1),
    Sketcher.Constraint("Tangent", 9, 2, 10, 1),
    Sketcher.Constraint("Tangent", 10, 2, 11, 1),
    Sketcher.Constraint("Tangent", 11, 2, 8, 1),
    Sketcher.Constraint("Tangent", 12, 2, 13, 1),
    Sketcher.Constraint("Tangent", 13, 2, 14, 1),
    Sketcher.Constraint("Tangent", 14, 2, 15, 1),
    Sketcher.Constraint("Tangent", 15, 2, 12, 1),
    Sketcher.Constraint("Vertical", 0),
    Sketcher.Constraint("Vertical", 2),
    Sketcher.Constraint("Vertical", 4),
    Sketcher.Constraint("Vertical", 6),
    Sketcher.Constraint("Vertical", 8),
    Sketcher.Constraint("Vertical", 10),
    Sketcher.Constraint("Vertical", 12),
    Sketcher.Constraint("Vertical", 14),
    Sketcher.Constraint("Equal", 3, 5),
    Sketcher.Constraint("Equal", 7, 9),
    Sketcher.Constraint("Equal", 11, 13),
    Sketcher.Constraint("Symmetric", 7, 3, 9, 3, -2),
    Sketcher.Constraint("Symmetric", 3, 3, 13, 3, -2),
    Sketcher.Constraint("Horizontal", 3, 3, 5, 3),
    Sketcher.Constraint("Horizontal", 1, 3, 7, 3),
    Sketcher.Constraint("Horizontal", 5, 3, 11, 3),
    Sketcher.Constraint("Horizontal", 9, 3, 15, 3),
    Sketcher.Constraint("Radius", 1, Q("2.15 mm")),
    Sketcher.Constraint("DistanceY", 0, 1, 0, 2, Q("3.2 mm")),
    Sketcher.Constraint("DistanceX", 3, 3, 5, 3, Q("10 mm")),
    Sketcher.Constraint("DistanceY", 1, 3, -1, 1, Q("92.9 mm")),
    Sketcher.Constraint("DistanceX", 7, 3, 9, 3, Q("126.1895 mm")),
])
pocket3 = body.newObject("PartDesign::Pocket", "Pocket002")
pocket3.Profile = sketch4
pocket3.Length = 10

# Sketch on XY plane
sketch5 = body.newObject("Sketcher::SketchObject", "Sketch004")
sketch5.AttachmentSupport = (doc.getObject("XY_Plane"), [""])
sketch5.MapMode = "FlatFace"
sketch5.AttachmentOffset = App.Placement(V(0, 0, 2), App.Rotation())
sketch5.addGeometry([
    Part.Circle(V(-50, 150, 0), V(0, 0, 1), 1.5),
    Part.Circle(V(50, 150, 0), V(0, 0, 1), 1.5),
    Part.Circle(V(-75, 57, 0), V(0, 0, 1), 1.5),
    Part.Circle(V(75, 57, 0), V(0, 0, 1), 1.5),
], False)
sketch5.addConstraint([
    Sketcher.Constraint("Equal", 0, 1),
    Sketcher.Constraint("Equal", 1, 2),
    Sketcher.Constraint("Equal", 2, 3),
    Sketcher.Constraint("Symmetric", 0, 3, 1, 3, -2),
    Sketcher.Constraint("Symmetric", 2, 3, 3, 3, -2),
    Sketcher.Constraint("Diameter", 0, Q("3 mm")),
    Sketcher.Constraint("DistanceX", 0, 3, -1, 1, Q("50 mm")),
    Sketcher.Constraint("DistanceY", -1, 1, 0, 3, Q("150 mm")),
    Sketcher.Constraint("DistanceX", 2, 3, -1, 1, Q("75 mm")),
    Sketcher.Constraint("DistanceY", -1, 1, 2, 3, Q("57 mm")),
])
pocket4 = body.newObject("PartDesign::Pocket", "Pocket003")
pocket4.Profile = sketch5
pocket4.Length = 10

# Sketch on XY plane
sketch6 = body.newObject("Sketcher::SketchObject", "Sketch005")
sketch6.AttachmentSupport = (doc.getObject("XY_Plane"), [""])
sketch6.MapMode = "FlatFace"
sketch6.AttachmentOffset = App.Placement(V(0, 0, 2), App.Rotation())
sketch6.addGeometry([
    Part.Circle(V(-40, -90, 0), V(0, 0, 1), 1.5),
    Part.Circle(V(40, -90, 0), V(0, 0, 1), 1.5),
    Part.Circle(V(-25, -25, 0), V(0, 0, 1), 1.5),
    Part.Circle(V(25, -25, 0), V(0, 0, 1), 1.5),
], False)
sketch6.addConstraint([
    Sketcher.Constraint("Equal", 0, 1),
    Sketcher.Constraint("Equal", 1, 2),
    Sketcher.Constraint("Equal", 2, 3),
    Sketcher.Constraint("Symmetric", 0, 3, 1, 3, -2),
    Sketcher.Constraint("Symmetric", 2, 3, 3, 3, -2),
    Sketcher.Constraint("Diameter", 0, Q("3 mm")),
    Sketcher.Constraint("DistanceX", 0, 3, -1, 1, Q("40 mm")),
    Sketcher.Constraint("DistanceY", 0, 3, -1, 1, Q("90 mm")),
    Sketcher.Constraint("DistanceX", 2, 3, -1, 1, Q("25 mm")),
    Sketcher.Constraint("DistanceY", 2, 3, -1, 1, Q("25 mm")),
])
pocket5 = body.newObject("PartDesign::Pocket", "Pocket004")
pocket5.Profile = sketch6
pocket5.Length = 10

# Sketch on XY plane
sketch7 = body.newObject("Sketcher::SketchObject", "Sketch006")
sketch7.AttachmentSupport = (doc.getObject("XY_Plane"), [""])
sketch7.MapMode = "FlatFace"
sketch7.AttachmentOffset = App.Placement(V(0, 0, 2), App.Rotation())
sketch7.addGeometry([
    Part.Circle(V(-16.5, 119.5, 0), V(0, 0, 1), 1.5),
    Part.Circle(V(-16.5, 152.5, 0), V(0, 0, 1), 1.5),
    Part.Circle(V(16.5, 119.5, 0), V(0, 0, 1), 1.5),
    Part.Circle(V(16.5, 152.5, 0), V(0, 0, 1), 1.5),
], False)
sketch7.addConstraint([
    Sketcher.Constraint("Equal", 0, 1),
    Sketcher.Constraint("Equal", 1, 2),
    Sketcher.Constraint("Equal", 2, 3),
    Sketcher.Constraint("Symmetric", 0, 3, 2, 3, -2),
    Sketcher.Constraint("Symmetric", 1, 3, 3, 3, -2),
    Sketcher.Constraint("Vertical", 0, 3, 1, 3),
    Sketcher.Constraint("Diameter", 0, Q("3 mm")),
    Sketcher.Constraint("DistanceY", 0, 3, 1, 3, Q("33 mm")),
    Sketcher.Constraint("DistanceX", 0, 3, 2, 3, Q("33 mm")),
    Sketcher.Constraint("DistanceY", -1, 1, 0, 3, Q("119.5 mm")),
])
pocket6 = body.newObject("PartDesign::Pocket", "Pocket005")
pocket6.Profile = sketch7
pocket6.Length = 20

doc.recompute()
